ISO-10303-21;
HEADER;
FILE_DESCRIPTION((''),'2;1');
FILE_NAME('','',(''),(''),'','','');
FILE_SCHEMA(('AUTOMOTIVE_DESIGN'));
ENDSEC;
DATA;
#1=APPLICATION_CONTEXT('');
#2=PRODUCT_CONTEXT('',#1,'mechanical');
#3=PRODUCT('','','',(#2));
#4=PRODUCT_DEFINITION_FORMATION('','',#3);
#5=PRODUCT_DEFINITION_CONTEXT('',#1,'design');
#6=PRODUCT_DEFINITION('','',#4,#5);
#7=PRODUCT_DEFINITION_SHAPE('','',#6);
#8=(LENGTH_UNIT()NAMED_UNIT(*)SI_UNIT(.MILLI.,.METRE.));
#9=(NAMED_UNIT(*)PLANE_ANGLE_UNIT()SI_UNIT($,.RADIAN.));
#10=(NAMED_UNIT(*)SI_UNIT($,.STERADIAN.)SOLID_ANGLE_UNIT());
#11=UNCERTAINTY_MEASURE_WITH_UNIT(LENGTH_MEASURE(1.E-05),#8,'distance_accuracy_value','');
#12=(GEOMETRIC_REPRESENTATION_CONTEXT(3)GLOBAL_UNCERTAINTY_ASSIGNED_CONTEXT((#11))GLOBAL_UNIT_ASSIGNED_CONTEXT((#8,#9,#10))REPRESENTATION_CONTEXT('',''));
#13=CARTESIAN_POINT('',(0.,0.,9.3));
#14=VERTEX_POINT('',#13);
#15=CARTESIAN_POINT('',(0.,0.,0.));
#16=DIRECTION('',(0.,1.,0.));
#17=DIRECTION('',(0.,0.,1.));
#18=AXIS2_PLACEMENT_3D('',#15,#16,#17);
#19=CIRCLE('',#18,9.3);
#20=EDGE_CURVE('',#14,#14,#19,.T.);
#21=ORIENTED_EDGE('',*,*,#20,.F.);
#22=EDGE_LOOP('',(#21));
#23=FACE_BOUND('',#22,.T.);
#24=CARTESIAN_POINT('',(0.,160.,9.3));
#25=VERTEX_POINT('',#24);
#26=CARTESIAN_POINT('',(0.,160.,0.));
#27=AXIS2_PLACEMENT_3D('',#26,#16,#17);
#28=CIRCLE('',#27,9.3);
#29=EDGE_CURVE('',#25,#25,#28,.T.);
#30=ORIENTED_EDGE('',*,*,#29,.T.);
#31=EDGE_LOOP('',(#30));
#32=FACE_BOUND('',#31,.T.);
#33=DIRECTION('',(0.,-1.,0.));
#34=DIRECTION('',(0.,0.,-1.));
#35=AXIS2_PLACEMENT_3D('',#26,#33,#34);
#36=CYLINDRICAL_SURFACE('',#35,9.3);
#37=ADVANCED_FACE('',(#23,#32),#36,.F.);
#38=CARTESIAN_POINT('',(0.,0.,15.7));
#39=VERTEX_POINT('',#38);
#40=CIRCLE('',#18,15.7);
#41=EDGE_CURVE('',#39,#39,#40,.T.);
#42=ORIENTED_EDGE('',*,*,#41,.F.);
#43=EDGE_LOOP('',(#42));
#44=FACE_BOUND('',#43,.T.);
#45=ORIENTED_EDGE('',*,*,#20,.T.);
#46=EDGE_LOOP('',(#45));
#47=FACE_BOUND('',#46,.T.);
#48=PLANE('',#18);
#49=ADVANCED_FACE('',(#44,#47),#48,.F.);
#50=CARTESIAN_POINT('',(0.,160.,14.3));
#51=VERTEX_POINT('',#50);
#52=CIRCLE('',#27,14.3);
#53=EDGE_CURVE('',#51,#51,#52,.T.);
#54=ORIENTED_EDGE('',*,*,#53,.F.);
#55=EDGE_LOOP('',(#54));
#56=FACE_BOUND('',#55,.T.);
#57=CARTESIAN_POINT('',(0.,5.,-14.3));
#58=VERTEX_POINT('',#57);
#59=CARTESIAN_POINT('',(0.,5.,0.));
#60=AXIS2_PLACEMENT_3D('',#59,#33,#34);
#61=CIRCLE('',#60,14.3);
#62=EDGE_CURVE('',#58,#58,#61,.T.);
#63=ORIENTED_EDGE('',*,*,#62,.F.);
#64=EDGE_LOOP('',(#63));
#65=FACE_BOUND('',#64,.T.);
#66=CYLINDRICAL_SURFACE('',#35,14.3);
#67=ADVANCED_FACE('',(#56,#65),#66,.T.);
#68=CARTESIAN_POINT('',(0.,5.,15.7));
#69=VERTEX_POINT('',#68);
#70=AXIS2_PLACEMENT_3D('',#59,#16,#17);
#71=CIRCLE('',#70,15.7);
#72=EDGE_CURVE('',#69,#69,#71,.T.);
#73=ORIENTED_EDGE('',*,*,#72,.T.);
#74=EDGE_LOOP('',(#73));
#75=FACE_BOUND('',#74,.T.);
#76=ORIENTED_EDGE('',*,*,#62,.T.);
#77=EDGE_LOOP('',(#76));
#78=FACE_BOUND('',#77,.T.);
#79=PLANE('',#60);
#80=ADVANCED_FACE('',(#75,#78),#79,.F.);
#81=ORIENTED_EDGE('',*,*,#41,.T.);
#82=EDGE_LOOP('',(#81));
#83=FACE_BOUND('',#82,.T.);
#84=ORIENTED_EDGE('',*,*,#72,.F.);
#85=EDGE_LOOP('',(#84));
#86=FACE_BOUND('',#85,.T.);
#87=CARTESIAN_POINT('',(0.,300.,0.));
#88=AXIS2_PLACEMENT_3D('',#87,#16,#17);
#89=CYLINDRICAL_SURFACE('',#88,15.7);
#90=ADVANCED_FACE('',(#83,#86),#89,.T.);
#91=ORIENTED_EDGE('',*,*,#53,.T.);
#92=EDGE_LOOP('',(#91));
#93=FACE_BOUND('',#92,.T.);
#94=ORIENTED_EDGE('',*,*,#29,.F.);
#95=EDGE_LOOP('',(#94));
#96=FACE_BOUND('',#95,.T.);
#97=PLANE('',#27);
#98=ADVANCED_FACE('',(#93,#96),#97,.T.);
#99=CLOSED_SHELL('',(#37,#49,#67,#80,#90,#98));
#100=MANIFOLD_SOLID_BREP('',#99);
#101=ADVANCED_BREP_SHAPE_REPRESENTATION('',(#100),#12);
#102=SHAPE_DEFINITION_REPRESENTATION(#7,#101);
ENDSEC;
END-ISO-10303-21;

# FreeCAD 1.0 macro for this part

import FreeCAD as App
import Part
import Sketcher
Q = App.Units.Quantity


def add_polygon(sketch, points):
    """Adds a closed chain of lines whose ends are joined by coincident constraints."""
    first, n = sketch.GeometryCount, len(points)
    for a, b in zip(points, points[1:] + points[:1]):
        sketch.addGeometry(Part.LineSegment(App.Vector(*a, 0), App.Vector(*b, 0)), False)
    for i in range(n):
        sketch.addConstraint(Sketcher.Constraint("Coincident", first + i, 2, first + (i + 1) % n, 1))

doc = App.newDocument("Part")
body = doc.addObject("PartDesign::Body", "Body")

sketch1 = body.newObject("Sketcher::SketchObject", "Sketch")
sketch1.AttachmentSupport = (doc.getObject("XZ_Plane"), [""])
sketch1.MapMode = "FlatFace"
sketch1.addGeometry(Part.Circle(App.Vector(0, 0, 0), App.Vector(0, 0, 1), 14.3), False)
sketch1.addGeometry(Part.Circle(App.Vector(0, 0, 0), App.Vector(0, 0, 1), 9.3), False)
sketch1.addConstraint(Sketcher.Constraint("Coincident", 0, 3, -1, 1))
sketch1.addConstraint(Sketcher.Constraint("Coincident", 1, 3, -1, 1))
sketch1.addConstraint(Sketcher.Constraint("Diameter", 0, Q("28.6 mm")))
sketch1.addConstraint(Sketcher.Constraint("Diameter", 1, Q("18.6 mm")))
pad1 = body.newObject("PartDesign::Pad", "Pad")
pad1.Profile = sketch1
pad1.Length = 160
pad1.Reversed = True

sketch2 = body.newObject("Sketcher::SketchObject", "Sketch001")
sketch2.AttachmentSupport = (doc.getObject("XY_Plane"), [""])
sketch2.MapMode = "FlatFace"
add_polygon(sketch2, [(-15.7, 5), (-15.7, 0), (-14.3, 0), (-14.3, 5)])
sketch2.addConstraint(Sketcher.Constraint("Vertical", 0))
sketch2.addConstraint(Sketcher.Constraint("Horizontal", 1))
sketch2.addConstraint(Sketcher.Constraint("Vertical", 2))
sketch2.addConstraint(Sketcher.Constraint("Horizontal", 3))
sketch2.addConstraint(Sketcher.Constraint("PointOnObject", 0, 2, -1))
sketch2.addConstraint(Sketcher.Constraint("DistanceY", 0, 2, 0, 1, Q("5 mm")))
sketch2.addConstraint(Sketcher.Constraint("DistanceX", 1, 1, 1, 2, Q("1.4 mm")))
sketch2.addConstraint(Sketcher.Constraint("DistanceX", 0, 2, -1, 1, Q("15.7 mm")))
revolution = body.newObject("PartDesign::Revolution", "Revolution")
revolution.Profile = sketch2
revolution.ReferenceAxis = (sketch2, ["V_Axis"])
revolution.Angle = 360

doc.recompute()
